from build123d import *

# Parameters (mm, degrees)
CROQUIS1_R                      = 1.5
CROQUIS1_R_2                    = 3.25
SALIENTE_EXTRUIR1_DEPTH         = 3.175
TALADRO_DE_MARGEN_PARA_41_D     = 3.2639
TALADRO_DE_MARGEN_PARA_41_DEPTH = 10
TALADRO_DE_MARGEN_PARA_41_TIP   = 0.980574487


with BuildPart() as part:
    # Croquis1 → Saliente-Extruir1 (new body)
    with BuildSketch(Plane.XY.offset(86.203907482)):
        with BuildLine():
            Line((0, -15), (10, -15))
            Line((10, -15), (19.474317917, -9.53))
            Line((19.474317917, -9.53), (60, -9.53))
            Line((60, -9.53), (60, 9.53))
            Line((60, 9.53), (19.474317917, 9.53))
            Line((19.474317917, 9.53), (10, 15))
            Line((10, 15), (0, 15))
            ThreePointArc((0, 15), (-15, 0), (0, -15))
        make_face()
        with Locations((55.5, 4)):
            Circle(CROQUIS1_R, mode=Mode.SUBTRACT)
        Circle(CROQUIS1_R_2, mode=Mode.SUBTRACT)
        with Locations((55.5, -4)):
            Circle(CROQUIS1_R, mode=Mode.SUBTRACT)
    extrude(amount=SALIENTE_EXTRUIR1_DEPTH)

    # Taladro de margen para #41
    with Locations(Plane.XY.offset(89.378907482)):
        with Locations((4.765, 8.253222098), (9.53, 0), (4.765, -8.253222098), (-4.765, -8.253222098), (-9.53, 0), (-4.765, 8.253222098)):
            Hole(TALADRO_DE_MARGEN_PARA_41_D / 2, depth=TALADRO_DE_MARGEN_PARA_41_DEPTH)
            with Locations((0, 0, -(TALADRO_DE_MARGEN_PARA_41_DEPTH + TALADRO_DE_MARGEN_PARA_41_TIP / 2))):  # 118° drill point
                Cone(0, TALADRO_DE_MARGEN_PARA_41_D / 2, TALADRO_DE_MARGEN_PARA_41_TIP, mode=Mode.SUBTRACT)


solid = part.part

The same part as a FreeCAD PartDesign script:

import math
import FreeCAD as App
import Part
import Sketcher
Q = App.Units.Quantity

doc = App.newDocument("Part")
body = doc.addObject("PartDesign::Body", "Body")

sketch1 = doc.addObject("Sketcher::SketchObject", "Sketch")
body.addObject(sketch1)
sketch1.AttachmentSupport = (doc.XY_Plane, [""])
sketch1.MapMode = "FlatFace"
sketch1.AttachmentOffset = App.Placement(App.Vector(0, 0, 86.203907), App.Rotation())
sketch1.addGeometry(Part.LineSegment(App.Vector(0, -15, 0), App.Vector(10, -15, 0)), False)
sketch1.addGeometry(Part.LineSegment(App.Vector(10, -15, 0), App.Vector(19.5, -9.5, 0)), False)
sketch1.addGeometry(Part.LineSegment(App.Vector(19.5, -9.5, 0), App.Vector(60, -9.5, 0)), False)
sketch1.addGeometry(Part.LineSegment(App.Vector(60, -9.5, 0), App.Vector(60, 9.5, 0)), False)
sketch1.addGeometry(Part.LineSegment(App.Vector(60, 9.5, 0), App.Vector(19.5, 9.5, 0)), False)
sketch1.addGeometry(Part.LineSegment(App.Vector(19.5, 9.5, 0), App.Vector(10, 15, 0)), False)
sketch1.addGeometry(Part.LineSegment(App.Vector(10, 15, 0), App.Vector(0, 15, 0)), False)
sketch1.addGeometry(Part.ArcOfCircle(Part.Circle(App.Vector(0, 0, 0), App.Vector(0, 0, 1), 15), math.radians(90), math.radians(270)), False)
sketch1.addGeometry(Part.Circle(App.Vector(55.5, -4, 0), App.Vector(0, 0, 1), 1.5), False)
sketch1.addGeometry(Part.Circle(App.Vector(0, 0, 0), App.Vector(0, 0, 1), 3.2), False)
sketch1.addGeometry(Part.Circle(App.Vector(55.5, 4, 0), App.Vector(0, 0, 1), 1.5), False)
sketch1.addConstraint(Sketcher.Constraint("Coincident", 0, 2, 1, 1))
sketch1.addConstraint(Sketcher.Constraint("Coincident", 1, 2, 2, 1))
sketch1.addConstraint(Sketcher.Constraint("Coincident", 2, 2, 3, 1))
sketch1.addConstraint(Sketcher.Constraint("Coincident", 3, 2, 4, 1))
sketch1.addConstraint(Sketcher.Constraint("Coincident", 4, 2, 5, 1))
sketch1.addConstraint(Sketcher.Constraint("Coincident", 5, 2, 6, 1))
sketch1.addConstraint(Sketcher.Constraint("Tangent", 6, 2, 7, 1))
sketch1.addConstraint(Sketcher.Constraint("Tangent", 7, 2, 0, 1))
sketch1.addConstraint(Sketcher.Constraint("Horizontal", 0))
sketch1.addConstraint(Sketcher.Constraint("Horizontal", 2))
sketch1.addConstraint(Sketcher.Constraint("Vertical", 3))
sketch1.addConstraint(Sketcher.Constraint("Horizontal", 4))
sketch1.addConstraint(Sketcher.Constraint("Horizontal", 6))
sketch1.addConstraint(Sketcher.Constraint("Coincident", 7, 3, -1, 1))
sketch1.addConstraint(Sketcher.Constraint("Coincident", 9, 3, -1, 1))
sketch1.addConstraint(Sketcher.Constraint("Equal", 8, 10))
sketch1.addConstraint(Sketcher.Constraint("Symmetric", 8, 3, 10, 3, -1))
sketch1.addConstraint(Sketcher.Constraint("Symmetric", 1, 2, 4, 2, -1))
sketch1.addConstraint(Sketcher.Constraint("Vertical", 0, 2, 5, 2))
sketch1.addConstraint(Sketcher.Constraint("Diameter", 8, 3.0))
sketch1.addConstraint(Sketcher.Constraint("Radius", 7, 15.0))
sketch1.addConstraint(Sketcher.Constraint("Diameter", 9, 6.5))
sketch1.addConstraint(Sketcher.Constraint("DistanceX", 0, 1, 0, 2, 10.0))
sketch1.addConstraint(Sketcher.Constraint("Angle", 1, Q("30 deg")))
sketch1.addConstraint(Sketcher.Constraint("DistanceY", 8, 3, -1, 1, 4.0))
sketch1.addConstraint(Sketcher.Constraint("DistanceX", -1, 1, 2, 2, 60.0))
sketch1.addConstraint(Sketcher.Constraint("DistanceY", 3, 1, 3, 2, 19.06))
sketch1.addConstraint(Sketcher.Constraint("DistanceX", -1, 1, 8, 3, 55.5))
pad1 = doc.addObject("PartDesign::Pad", "Pad")
body.addObject(pad1)
pad1.Profile = sketch1
pad1.Length = 3.175

sketch2 = doc.addObject("Sketcher::SketchObject", "Sketch001")
body.addObject(sketch2)
sketch2.AttachmentSupport = (doc.XY_Plane, [""])
sketch2.MapMode = "FlatFace"
sketch2.AttachmentOffset = App.Placement(App.Vector(0, 0, 89.378907), App.Rotation())
sketch2.addGeometry(Part.Circle(App.Vector(4.8, 8.3, 0), App.Vector(0, 0, 1), 1.6), False)
sketch2.addGeometry(Part.Circle(App.Vector(9.5, 0, 0), App.Vector(0, 0, 1), 1.6), False)
sketch2.addGeometry(Part.Circle(App.Vector(4.8, -8.3, 0), App.Vector(0, 0, 1), 1.6), False)
sketch2.addGeometry(Part.Circle(App.Vector(-4.8, -8.3, 0), App.Vector(0, 0, 1), 1.6), False)
sketch2.addGeometry(Part.Circle(App.Vector(-9.5, 0, 0), App.Vector(0, 0, 1), 1.6), False)
sketch2.addGeometry(Part.Circle(App.Vector(-4.8, 8.3, 0), App.Vector(0, 0, 1), 1.6), False)
sketch2.addConstraint(Sketcher.Constraint("Equal", 0, 1))
sketch2.addConstraint(Sketcher.Constraint("Equal", 1, 2))
sketch2.addConstraint(Sketcher.Constraint("Equal", 2, 3))
sketch2.addConstraint(Sketcher.Constraint("Equal", 3, 4))
sketch2.addConstraint(Sketcher.Constraint("Equal", 4, 5))
sketch2.addConstraint(Sketcher.Constraint("Symmetric", 0, 3, 3, 3, -1, 1))
sketch2.addConstraint(Sketcher.Constraint("Symmetric", 1, 3, 4, 3, -1, 1))
sketch2.addConstraint(Sketcher.Constraint("Symmetric", 2, 3, 5, 3, -1, 1))
sketch2.addConstraint(Sketcher.Constraint("Symmetric", 2, 3, 3, 3, -2))
sketch2.addConstraint(Sketcher.Constraint("PointOnObject", 1, 3, -1))
sketch2.addConstraint(Sketcher.Constraint("Diameter", 0, 3.2639))
sketch2.addConstraint(Sketcher.Constraint("DistanceX", -1, 1, 1, 3, 9.53))
sketch2.addConstraint(Sketcher.Constraint("DistanceX", 3, 3, 2, 3, 9.53))
sketch2.addConstraint(Sketcher.Constraint("DistanceY", -1, 1, 0, 3, 8.253222))
doc.recompute()
hole = doc.addObject("PartDesign::Hole", "Hole")
body.addObject(hole)
hole.Profile = sketch2
hole.ThreadType = "None"
hole.Diameter = 3.2639
hole.DepthType = "Dimension"
hole.Depth = 10
hole.DrillPoint = "Angled"
hole.DrillPointAngle = 118

doc.recompute()
